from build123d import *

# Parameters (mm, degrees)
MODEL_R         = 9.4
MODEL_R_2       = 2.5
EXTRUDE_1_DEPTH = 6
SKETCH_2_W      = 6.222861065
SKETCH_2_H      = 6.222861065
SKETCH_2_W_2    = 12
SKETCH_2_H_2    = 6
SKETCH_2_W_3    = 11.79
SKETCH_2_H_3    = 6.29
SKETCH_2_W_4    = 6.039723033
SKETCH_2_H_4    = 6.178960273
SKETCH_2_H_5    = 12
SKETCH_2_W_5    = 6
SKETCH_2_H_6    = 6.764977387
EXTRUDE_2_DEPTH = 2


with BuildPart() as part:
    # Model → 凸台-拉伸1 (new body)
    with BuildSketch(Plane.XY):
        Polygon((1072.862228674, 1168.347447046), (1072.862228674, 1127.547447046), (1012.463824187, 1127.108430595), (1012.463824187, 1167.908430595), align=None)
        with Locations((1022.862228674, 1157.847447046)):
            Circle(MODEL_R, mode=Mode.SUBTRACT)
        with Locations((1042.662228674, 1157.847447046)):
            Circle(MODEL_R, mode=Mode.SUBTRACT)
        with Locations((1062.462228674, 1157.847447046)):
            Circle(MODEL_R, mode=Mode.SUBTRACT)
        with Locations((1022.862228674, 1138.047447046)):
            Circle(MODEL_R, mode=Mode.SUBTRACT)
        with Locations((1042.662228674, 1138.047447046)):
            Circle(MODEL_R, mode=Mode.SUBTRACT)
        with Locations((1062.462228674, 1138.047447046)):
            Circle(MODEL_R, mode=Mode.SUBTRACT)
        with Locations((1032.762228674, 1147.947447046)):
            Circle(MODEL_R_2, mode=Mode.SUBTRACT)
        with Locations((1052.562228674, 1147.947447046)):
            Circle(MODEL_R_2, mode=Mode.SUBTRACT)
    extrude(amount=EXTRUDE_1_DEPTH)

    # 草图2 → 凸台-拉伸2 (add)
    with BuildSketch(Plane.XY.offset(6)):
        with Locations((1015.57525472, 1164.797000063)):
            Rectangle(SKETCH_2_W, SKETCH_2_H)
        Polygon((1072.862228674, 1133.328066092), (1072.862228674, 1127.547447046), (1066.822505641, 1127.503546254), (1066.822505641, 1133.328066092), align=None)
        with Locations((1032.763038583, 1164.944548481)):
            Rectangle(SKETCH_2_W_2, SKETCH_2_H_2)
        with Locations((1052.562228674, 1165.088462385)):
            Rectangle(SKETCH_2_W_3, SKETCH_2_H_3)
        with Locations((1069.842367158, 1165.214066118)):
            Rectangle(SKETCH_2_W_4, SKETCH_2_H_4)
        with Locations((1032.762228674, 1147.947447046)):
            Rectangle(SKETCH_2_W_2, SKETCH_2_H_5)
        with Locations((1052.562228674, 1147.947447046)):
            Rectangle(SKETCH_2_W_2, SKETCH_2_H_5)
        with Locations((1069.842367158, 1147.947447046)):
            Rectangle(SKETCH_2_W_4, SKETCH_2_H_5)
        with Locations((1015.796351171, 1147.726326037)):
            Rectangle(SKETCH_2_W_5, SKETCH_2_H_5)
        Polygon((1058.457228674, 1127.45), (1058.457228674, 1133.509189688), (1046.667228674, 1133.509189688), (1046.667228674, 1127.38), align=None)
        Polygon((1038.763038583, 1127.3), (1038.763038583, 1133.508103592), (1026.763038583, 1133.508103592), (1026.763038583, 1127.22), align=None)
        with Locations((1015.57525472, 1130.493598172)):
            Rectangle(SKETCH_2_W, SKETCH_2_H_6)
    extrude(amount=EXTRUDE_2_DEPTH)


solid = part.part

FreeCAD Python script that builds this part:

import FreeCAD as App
import Part
import Sketcher
from FreeCAD import Vector


def add_polygon(sketch, points):
    """Adds a closed chain of lines whose ends are joined by coincident constraints."""
    first, n = sketch.GeometryCount, len(points)
    for a, b in zip(points, points[1:] + points[:1]):
        sketch.addGeometry(Part.LineSegment(App.Vector(*a, 0), App.Vector(*b, 0)), False)
    for i in range(n):
        sketch.addConstraint(Sketcher.Constraint("Coincident", first + i, 2, first + (i + 1) % n, 1))

doc = App.newDocument("Part")
body = doc.addObject("PartDesign::Body", "Body")

sketch1 = body.newObject("Sketcher::SketchObject", "Sketch")
sketch1.AttachmentSupport = (doc.getObject("XY_Plane"), [""])
sketch1.MapMode = "FlatFace"
add_polygon(sketch1, [(1072.862229, 1127.547447), (1072.862229, 1168.347447), (1012.463824, 1167.908431), (1012.463824, 1127.108431)])
sketch1.addGeometry(Part.Circle(Vector(1062.462229, 1138.047447, 0), Vector(0, 0, 1), 9.4), False)
sketch1.addGeometry(Part.Circle(Vector(1042.662229, 1138.047447, 0), Vector(0, 0, 1), 9.4), False)
sketch1.addGeometry(Part.Circle(Vector(1022.862229, 1138.047447, 0), Vector(0, 0, 1), 9.4), False)
sketch1.addGeometry(Part.Circle(Vector(1052.562229, 1147.947447, 0), Vector(0, 0, 1), 2.5), False)
sketch1.addGeometry(Part.Circle(Vector(1062.462229, 1157.847447, 0), Vector(0, 0, 1), 9.4), False)
sketch1.addGeometry(Part.Circle(Vector(1032.762229, 1147.947447, 0), Vector(0, 0, 1), 2.5), False)
sketch1.addGeometry(Part.Circle(Vector(1042.662229, 1157.847447, 0), Vector(0, 0, 1), 9.4), False)
sketch1.addGeometry(Part.Circle(Vector(1022.862229, 1157.847447, 0), Vector(0, 0, 1), 9.4), False)
sketch1.addConstraint([
    Sketcher.Constraint("Vertical", 0),
    Sketcher.Constraint("Vertical", 2),
    Sketcher.Constraint("Equal", 4, 5),
    Sketcher.Constraint("Equal", 5, 6),
    Sketcher.Constraint("Equal", 6, 8),
    Sketcher.Constraint("Equal", 7, 9),
    Sketcher.Constraint("Equal", 8, 10),
    Sketcher.Constraint("Equal", 10, 11),
    Sketcher.Constraint("Parallel", 1, 3),
    Sketcher.Constraint("Horizontal", 4, 3, 5, 3),
    Sketcher.Constraint("Horizontal", 5, 3, 6, 3),
    Sketcher.Constraint("Horizontal", 7, 3, 9, 3),
    Sketcher.Constraint("Horizontal", 8, 3, 10, 3),
    Sketcher.Constraint("Horizontal", 10, 3, 11, 3),
    Sketcher.Constraint("Vertical", 4, 3, 8, 3),
    Sketcher.Constraint("Vertical", 5, 3, 10, 3),
    Sketcher.Constraint("Vertical", 6, 3, 11, 3),
    Sketcher.Constraint("Diameter", 7, 5.0),
    Sketcher.Constraint("Diameter", 4, 18.8),
    Sketcher.Constraint("DistanceY", 0, 1, 0, 2, 40.8),
    Sketcher.Constraint("Distance", 1, 60.4),
    Sketcher.Constraint("DistanceX", 5, 3, 4, 3, 19.8),
    Sketcher.Constraint("DistanceX", 6, 3, 5, 3, 19.8),
    Sketcher.Constraint("DistanceX", 5, 3, 7, 3, 9.9),
    Sketcher.Constraint("DistanceY", 5, 3, 7, 3, 9.9),
    Sketcher.Constraint("DistanceY", 7, 3, 8, 3, 9.9),
    Sketcher.Constraint("DistanceX", 6, 3, 9, 3, 9.9),
    Sketcher.Constraint("DistanceX", 8, 3, 0, 2, 10.4),
    Sketcher.Constraint("DistanceY", 8, 3, 0, 2, 10.5),
    Sketcher.Constraint("DistanceX", -1, 1, 4, 3, 1062.462229),
    Sketcher.Constraint("DistanceY", -1, 1, 1, 2, 1167.908431),
    Sketcher.Constraint("DistanceY", -1, 1, 4, 3, 1138.047447),
])
pad1 = body.newObject("PartDesign::Pad", "Pad")
pad1.Profile = sketch1
pad1.Length = 6

sketch2 = body.newObject("Sketcher::SketchObject", "Sketch001")
sketch2.AttachmentSupport = (doc.getObject("XY_Plane"), [""])
sketch2.MapMode = "FlatFace"
sketch2.AttachmentOffset = App.Placement(Vector(0, 0, 6), App.Rotation())
add_polygon(sketch2, [(1012.463824, 1167.908431), (1012.463824, 1161.68557), (1018.686685, 1161.68557), (1018.686685, 1167.908431)])
add_polygon(sketch2, [(1072.862229, 1127.547447), (1072.862229, 1133.328066), (1066.822506, 1133.328066), (1066.822506, 1127.503546)])
add_polygon(sketch2, [(1026.763039, 1167.944548), (1026.763039, 1161.944548), (1038.763039, 1161.944548), (1038.763039, 1167.944548)])
add_polygon(sketch2, [(1046.667229, 1168.233462), (1046.667229, 1161.943462), (1058.457229, 1161.943462), (1058.457229, 1168.233462)])
add_polygon(sketch2, [(1066.822506, 1168.303546), (1066.822506, 1162.124586), (1072.862229, 1162.124586), (1072.862229, 1168.303546)])
add_polygon(sketch2, [(1026.762229, 1153.947447), (1026.762229, 1141.947447), (1038.762229, 1141.947447), (1038.762229, 1153.947447)])
add_polygon(sketch2, [(1046.562229, 1153.947447), (1046.562229, 1141.947447), (1058.562229, 1141.947447), (1058.562229, 1153.947447)])
add_polygon(sketch2, [(1066.822506, 1153.947447), (1066.822506, 1141.947447), (1072.862229, 1141.947447), (1072.862229, 1153.947447)])
add_polygon(sketch2, [(1012.796351, 1153.726326), (1012.796351, 1141.726326), (1018.796351, 1141.726326), (1018.796351, 1153.726326)])
add_polygon(sketch2, [(1058.457229, 1127.45), (1058.457229, 1133.50919), (1046.667229, 1133.50919), (1046.667229, 1127.38)])
add_polygon(sketch2, [(1038.763039, 1127.3), (1038.763039, 1133.508104), (1026.763039, 1133.508104), (1026.763039, 1127.22)])
add_polygon(sketch2, [(1012.463824, 1133.876087), (1012.463824, 1127.111109), (1018.686685, 1127.111109), (1018.686685, 1133.876087)])
sketch2.addConstraint([
    Sketcher.Constraint("Vertical", 0),
    Sketcher.Constraint("Horizontal", 1),
    Sketcher.Constraint("Vertical", 2),
    Sketcher.Constraint("Horizontal", 3),
    Sketcher.Constraint("Vertical", 4),
    Sketcher.Constraint("Horizontal", 5),
    Sketcher.Constraint("Vertical", 6),
    Sketcher.Constraint("Vertical", 8),
    Sketcher.Constraint("Horizontal", 9),
    Sketcher.Constraint("Vertical", 10),
    Sketcher.Constraint("Horizontal", 11),
    Sketcher.Constraint("Vertical", 12),
    Sketcher.Constraint("Horizontal", 13),
    Sketcher.Constraint("Vertical", 14),
    Sketcher.Constraint("Horizontal", 15),
    Sketcher.Constraint("Vertical", 16),
    Sketcher.Constraint("Horizontal", 17),
    Sketcher.Constraint("Vertical", 18),
    Sketcher.Constraint("Horizontal", 19),
    Sketcher.Constraint("Vertical", 20),
    Sketcher.Constraint("Horizontal", 21),
    Sketcher.Constraint("Vertical", 22),
    Sketcher.Constraint("Horizontal", 23),
    Sketcher.Constraint("Vertical", 24),
    Sketcher.Constraint("Horizontal", 25),
    Sketcher.Constraint("Vertical", 26),
    Sketcher.Constraint("Horizontal", 27),
    Sketcher.Constraint("Vertical", 28),
    Sketcher.Constraint("Horizontal", 29),
    Sketcher.Constraint("Vertical", 30),
    Sketcher.Constraint("Horizontal", 31),
    Sketcher.Constraint("Vertical", 32),
    Sketcher.Constraint("Horizontal", 33),
    Sketcher.Constraint("Vertical", 34),
    Sketcher.Constraint("Horizontal", 35),
    Sketcher.Constraint("Vertical", 36),
    Sketcher.Constraint("Horizontal", 37),
    Sketcher.Constraint("Vertical", 38),
    Sketcher.Constraint("Vertical", 40),
    Sketcher.Constraint("Horizontal", 41),
    Sketcher.Constraint("Vertical", 42),
    Sketcher.Constraint("Vertical", 44),
    Sketcher.Constraint("Horizontal", 45),
    Sketcher.Constraint("Vertical", 46),
    Sketcher.Constraint("Horizontal", 47),
    Sketcher.Constraint("Horizontal", 21, 2, 24, 2),
    Sketcher.Constraint("Horizontal", 23, 2, 26, 2),
    Sketcher.Constraint("Horizontal", 25, 2, 28, 2),
    Sketcher.Constraint("Horizontal", 27, 2, 30, 2),
    Sketcher.Constraint("Vertical", 6, 2, 16, 2),
    Sketcher.Constraint("Vertical", 7, 2, 17, 2),
    Sketcher.Constraint("Vertical", 19, 2, 28, 2),
    Sketcher.Constraint("Vertical", 18, 2, 29, 2),
    Sketcher.Constraint("Vertical", 14, 2, 36, 2),
    Sketcher.Constraint("Vertical", 15, 2, 37, 2),
    Sketcher.Constraint("Vertical", 10, 2, 40, 2),
    Sketcher.Constraint("Vertical", 11, 2, 41, 2),
    Sketcher.Constraint("Vertical", 3, 2, 44, 2),
    Sketcher.Constraint("Vertical", 2, 2, 45, 2),
    Sketcher.Constraint("Equal", 11, 21),
    Sketcher.Constraint("Equal", 23, 25),
    Sketcher.Constraint("Equal", 47, 0),
    Sketcher.Constraint("Equal", 35, 8),
    Sketcher.Constraint("Equal", 41, 20),
    Sketcher.Constraint("Equal", 30, 32),
    Sketcher.Constraint("DistanceX", 9, 1, 9, 2, 12.0),
    Sketcher.Constraint("DistanceX", 33, 1, 33, 2, 6.0),
    Sketcher.Constraint("DistanceX", 13, 1, 13, 2, 11.79),
    Sketcher.Constraint("DistanceY", 12, 2, 12, 1, 6.29),
    Sketcher.Constraint("DistanceY", -1, 1, 43, 2, 1127.3),
    Sketcher.Constraint("DistanceX", 21, 2, 24, 2, 7.8),
    Sketcher.Constraint("DistanceX", 25, 2, 4, 2, 14.3),
    Sketcher.Constraint("DistanceY", 7, 2, 29, 2, 14.4),
    Sketcher.Constraint("DistanceY", -1, 1, 38, 2, 1127.38),
    Sketcher.Constraint("DistanceY", -1, 1, 39, 2, 1127.45),
    Sketcher.Constraint("DistanceY", -1, 1, 42, 2, 1127.22),
    Sketcher.Constraint("DistanceX", 13, 2, 17, 2, 14.405),
    Sketcher.Constraint("DistanceX", 1, 1, 1, 2, 6.222861),
    Sketcher.Constraint("DistanceY", 4, 1, 4, 2, 5.780619),
    Sketcher.Constraint("DistanceY", 6, 2, 6, 1, 5.82452),
    Sketcher.Constraint("DistanceY", 16, 2, 16, 1, 6.17896),
    Sketcher.Constraint("DistanceY", 36, 1, 36, 2, 6.05919),
    Sketcher.Constraint("DistanceY", 20, 2, 8, 2, 19.997101),
    Sketcher.Constraint("DistanceX", 5, 2, 5, 1, 6.039723),
    Sketcher.Constraint("DistanceY", 40, 1, 40, 2, 6.208104),
    Sketcher.Constraint("DistanceY", 44, 2, 44, 1, 6.764977),
    Sketcher.Constraint("DistanceY", -1, 1, 0, 2, 1161.68557),
    Sketcher.Constraint("DistanceX", -1, 1, 4, 2, 1072.862229),
    Sketcher.Constraint("DistanceX", -1, 1, 8, 2, 1026.763039),
    Sketcher.Constraint("DistanceY", -1, 1, 8, 2, 1161.944548),
    Sketcher.Constraint("DistanceX", -1, 1, 32, 2, 1012.796351),
    Sketcher.Constraint("DistanceY", -1, 1, 44, 2, 1127.111109),
    Sketcher.Constraint("DistanceX", 1, 2, 5, 2, 48.13582),
    Sketcher.Constraint("DistanceY", 26, 2, 16, 2, 8.177139),
    Sketcher.Constraint("DistanceY", 32, 2, 20, 2, 0.221121),
    Sketcher.Constraint("DistanceY", -1, 1, 12, 2, 1161.943462),
])
pad2 = body.newObject("PartDesign::Pad", "Pad001")
pad2.Profile = sketch2
pad2.Length = 2

doc.recompute()
